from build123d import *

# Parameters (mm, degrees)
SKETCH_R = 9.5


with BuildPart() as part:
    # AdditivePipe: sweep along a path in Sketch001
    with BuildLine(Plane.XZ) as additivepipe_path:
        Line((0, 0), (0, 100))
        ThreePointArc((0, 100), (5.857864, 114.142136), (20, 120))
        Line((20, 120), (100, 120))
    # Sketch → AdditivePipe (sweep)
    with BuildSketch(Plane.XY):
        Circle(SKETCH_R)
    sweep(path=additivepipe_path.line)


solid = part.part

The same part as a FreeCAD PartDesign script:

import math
import FreeCAD as App
import Part
import Sketcher

V = App.Vector

doc = App.newDocument("Part")
body = doc.addObject("PartDesign::Body", "Body")

sketch1 = doc.addObject("Sketcher::SketchObject", "Sketch")
body.addObject(sketch1)
sketch1.AttachmentSupport = (doc.XY_Plane, [""])
sketch1.MapMode = "FlatFace"
sketch1.addGeometry(Part.Circle(V(0, 0, 0), V(0, 0, 1), 9.5), False)
sketch1.addConstraint([
    Sketcher.Constraint("Coincident", 0, 3, -1, 1),
    Sketcher.Constraint("Diameter", 0, 19.0),
])

sketch2 = doc.addObject("Sketcher::SketchObject", "Sketch001")
body.addObject(sketch2)
sketch2.AttachmentSupport = (doc.XZ_Plane, [""])
sketch2.MapMode = "FlatFace"
sketch2.addGeometry([
    Part.LineSegment(V(0, 0, 0), V(0, 100, 0)),
    Part.ArcOfCircle(Part.Circle(V(19.999999, 100.000001, 0), V(0, 0, 1), 19.999999), math.radians(89.999996), math.radians(180.000004)),
    Part.LineSegment(V(20, 120, 0), V(100, 120, 0)),
], False)
sketch2.addConstraint([
    Sketcher.Constraint("Tangent", 0, 2, 1, 2),
    Sketcher.Constraint("Tangent", 1, 1, 2, 1),
    Sketcher.Constraint("Vertical", 0),
    Sketcher.Constraint("Horizontal", 2),
    Sketcher.Constraint("Coincident", 0, 1, -1, 1),
    Sketcher.Constraint("Radius", 1, 19.999999),
    Sketcher.Constraint("DistanceX", 2, 1, 2, 2, 80.0),
    Sketcher.Constraint("DistanceY", 0, 1, 0, 2, 100.0),
])
doc.recompute()

additivepipe = doc.addObject("PartDesign::AdditivePipe", "AdditivePipe")
body.addObject(additivepipe)
additivepipe.Profile = sketch1
additivepipe.Spine = (sketch2, ["Edge1", "Edge2", "Edge3"])

doc.recompute()
